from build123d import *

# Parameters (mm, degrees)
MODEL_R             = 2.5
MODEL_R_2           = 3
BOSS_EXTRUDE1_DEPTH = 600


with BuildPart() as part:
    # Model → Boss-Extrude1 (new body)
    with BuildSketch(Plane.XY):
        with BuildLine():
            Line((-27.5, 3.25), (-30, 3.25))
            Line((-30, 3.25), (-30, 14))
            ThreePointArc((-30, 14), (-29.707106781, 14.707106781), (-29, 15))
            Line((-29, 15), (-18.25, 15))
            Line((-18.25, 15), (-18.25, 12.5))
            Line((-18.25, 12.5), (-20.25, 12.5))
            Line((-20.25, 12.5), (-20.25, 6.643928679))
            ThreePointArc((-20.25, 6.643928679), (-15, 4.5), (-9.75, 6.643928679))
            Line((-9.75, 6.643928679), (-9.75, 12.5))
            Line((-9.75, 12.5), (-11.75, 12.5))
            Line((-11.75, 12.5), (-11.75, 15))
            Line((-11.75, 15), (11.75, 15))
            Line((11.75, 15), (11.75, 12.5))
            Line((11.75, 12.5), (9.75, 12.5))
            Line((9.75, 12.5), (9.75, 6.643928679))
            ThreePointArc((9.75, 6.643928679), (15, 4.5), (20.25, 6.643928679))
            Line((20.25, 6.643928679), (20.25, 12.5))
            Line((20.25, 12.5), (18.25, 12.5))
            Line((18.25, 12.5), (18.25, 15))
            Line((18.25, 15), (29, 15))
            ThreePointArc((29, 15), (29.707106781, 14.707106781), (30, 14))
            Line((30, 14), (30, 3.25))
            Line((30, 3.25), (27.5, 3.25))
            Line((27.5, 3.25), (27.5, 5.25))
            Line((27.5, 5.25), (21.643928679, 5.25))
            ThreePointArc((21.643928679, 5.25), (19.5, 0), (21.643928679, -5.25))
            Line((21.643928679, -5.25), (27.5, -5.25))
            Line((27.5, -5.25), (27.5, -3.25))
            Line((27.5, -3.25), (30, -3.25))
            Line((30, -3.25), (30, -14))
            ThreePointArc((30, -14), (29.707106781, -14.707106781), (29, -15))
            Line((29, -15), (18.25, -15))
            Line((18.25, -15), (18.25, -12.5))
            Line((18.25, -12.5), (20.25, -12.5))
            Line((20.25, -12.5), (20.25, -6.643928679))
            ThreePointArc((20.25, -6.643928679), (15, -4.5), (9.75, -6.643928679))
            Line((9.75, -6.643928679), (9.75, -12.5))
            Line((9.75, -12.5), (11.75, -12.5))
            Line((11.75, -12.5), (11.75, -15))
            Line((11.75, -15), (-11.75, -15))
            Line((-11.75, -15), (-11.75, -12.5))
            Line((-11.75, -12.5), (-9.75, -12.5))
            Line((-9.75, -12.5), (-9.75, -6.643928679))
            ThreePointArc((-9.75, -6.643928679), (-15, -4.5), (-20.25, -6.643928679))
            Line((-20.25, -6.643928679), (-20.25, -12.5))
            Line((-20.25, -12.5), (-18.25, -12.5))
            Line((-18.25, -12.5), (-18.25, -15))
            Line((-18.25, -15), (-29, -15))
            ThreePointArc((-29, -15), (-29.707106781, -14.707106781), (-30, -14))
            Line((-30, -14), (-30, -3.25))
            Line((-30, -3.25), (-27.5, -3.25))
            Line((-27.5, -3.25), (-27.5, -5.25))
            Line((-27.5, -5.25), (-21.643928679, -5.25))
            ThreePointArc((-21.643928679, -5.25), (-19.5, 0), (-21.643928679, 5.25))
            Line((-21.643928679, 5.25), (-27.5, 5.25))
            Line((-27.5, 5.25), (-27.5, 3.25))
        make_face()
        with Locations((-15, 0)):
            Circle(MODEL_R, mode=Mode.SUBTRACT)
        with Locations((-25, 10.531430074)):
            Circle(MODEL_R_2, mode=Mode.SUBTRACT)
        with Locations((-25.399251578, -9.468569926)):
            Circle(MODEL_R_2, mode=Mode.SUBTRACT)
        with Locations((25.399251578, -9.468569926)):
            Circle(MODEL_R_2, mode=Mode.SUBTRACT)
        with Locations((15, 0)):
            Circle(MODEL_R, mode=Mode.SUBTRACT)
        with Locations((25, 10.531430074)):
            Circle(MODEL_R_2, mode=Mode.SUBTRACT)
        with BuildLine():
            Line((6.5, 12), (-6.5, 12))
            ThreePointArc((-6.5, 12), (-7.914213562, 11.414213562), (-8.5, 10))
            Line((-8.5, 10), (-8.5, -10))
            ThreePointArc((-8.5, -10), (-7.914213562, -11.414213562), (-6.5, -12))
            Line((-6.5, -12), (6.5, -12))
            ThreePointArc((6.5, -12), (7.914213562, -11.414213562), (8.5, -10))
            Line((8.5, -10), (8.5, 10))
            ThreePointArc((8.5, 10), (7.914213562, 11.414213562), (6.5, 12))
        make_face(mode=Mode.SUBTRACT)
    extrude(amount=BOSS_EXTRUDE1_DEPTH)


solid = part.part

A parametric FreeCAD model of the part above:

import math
import FreeCAD as App
import Part
import Sketcher
from FreeCAD import Vector

doc = App.newDocument("Part")
body = doc.addObject("PartDesign::Body", "Body")

sketch1 = body.newObject("Sketcher::SketchObject", "Sketch")
sketch1.AttachmentSupport = (doc.getObject("XY_Plane"), [""])
sketch1.MapMode = "FlatFace"
sketch1.addGeometry([
    Part.LineSegment(Vector(-30, 3.2, 0), Vector(-27.5, 3.2, 0)),
    Part.LineSegment(Vector(-27.5, 3.2, 0), Vector(-27.5, 5.2, 0)),
    Part.LineSegment(Vector(-27.5, 5.2, 0), Vector(-21.6, 5.2, 0)),
    Part.ArcOfCircle(Part.Circle(Vector(-27, 0, 0), Vector(0, 0, 1), 7.5), math.radians(-44), math.radians(44)),
    Part.LineSegment(Vector(-21.6, -5.2, 0), Vector(-27.5, -5.2, 0)),
    Part.LineSegment(Vector(-27.5, -5.2, 0), Vector(-27.5, -3.2, 0)),
    Part.LineSegment(Vector(-27.5, -3.2, 0), Vector(-30, -3.2, 0)),
    Part.LineSegment(Vector(-30, -3.2, 0), Vector(-30, -14, 0)),
    Part.ArcOfCircle(Part.Circle(Vector(-29, -14, 0), Vector(0, 0, 1), 1), math.radians(-180), math.radians(-90)),
    Part.LineSegment(Vector(-29, -15, 0), Vector(-18.2, -15, 0)),
    Part.LineSegment(Vector(-18.2, -15, 0), Vector(-18.2, -12.5, 0)),
    Part.LineSegment(Vector(-18.2, -12.5, 0), Vector(-20.2, -12.5, 0)),
    Part.LineSegment(Vector(-20.2, -12.5, 0), Vector(-20.2, -6.6, 0)),
    Part.ArcOfCircle(Part.Circle(Vector(-15, -12, 0), Vector(0, 0, 1), 7.5), math.radians(46), math.radians(134)),
    Part.LineSegment(Vector(-9.8, -6.6, 0), Vector(-9.8, -12.5, 0)),
    Part.LineSegment(Vector(-9.8, -12.5, 0), Vector(-11.8, -12.5, 0)),
    Part.LineSegment(Vector(-11.8, -12.5, 0), Vector(-11.8, -15, 0)),
    Part.LineSegment(Vector(-11.8, -15, 0), Vector(11.8, -15, 0)),
    Part.LineSegment(Vector(11.8, -15, 0), Vector(11.8, -12.5, 0)),
    Part.LineSegment(Vector(11.8, -12.5, 0), Vector(9.8, -12.5, 0)),
    Part.LineSegment(Vector(9.8, -12.5, 0), Vector(9.8, -6.6, 0)),
    Part.ArcOfCircle(Part.Circle(Vector(15, -12, 0), Vector(0, 0, 1), 7.5), math.radians(46), math.radians(134)),
    Part.LineSegment(Vector(20.2, -6.6, 0), Vector(20.2, -12.5, 0)),
    Part.LineSegment(Vector(20.2, -12.5, 0), Vector(18.2, -12.5, 0)),
    Part.LineSegment(Vector(18.2, -12.5, 0), Vector(18.2, -15, 0)),
    Part.LineSegment(Vector(18.2, -15, 0), Vector(29, -15, 0)),
    Part.ArcOfCircle(Part.Circle(Vector(29, -14, 0), Vector(0, 0, 1), 1), math.radians(-90), math.radians(0)),
    Part.LineSegment(Vector(30, -14, 0), Vector(30, -3.2, 0)),
    Part.LineSegment(Vector(30, -3.2, 0), Vector(27.5, -3.2, 0)),
    Part.LineSegment(Vector(27.5, -3.2, 0), Vector(27.5, -5.2, 0)),
    Part.LineSegment(Vector(27.5, -5.2, 0), Vector(21.6, -5.2, 0)),
    Part.ArcOfCircle(Part.Circle(Vector(27, 0, 0), Vector(0, 0, 1), 7.5), math.radians(136), math.radians(224)),
    Part.LineSegment(Vector(21.6, 5.2, 0), Vector(27.5, 5.2, 0)),
    Part.LineSegment(Vector(27.5, 5.2, 0), Vector(27.5, 3.2, 0)),
    Part.LineSegment(Vector(27.5, 3.2, 0), Vector(30, 3.2, 0)),
    Part.LineSegment(Vector(30, 3.2, 0), Vector(30, 14, 0)),
    Part.ArcOfCircle(Part.Circle(Vector(29, 14, 0), Vector(0, 0, 1), 1), math.radians(0), math.radians(90)),
    Part.LineSegment(Vector(29, 15, 0), Vector(18.2, 15, 0)),
    Part.LineSegment(Vector(18.2, 15, 0), Vector(18.2, 12.5, 0)),
    Part.LineSegment(Vector(18.2, 12.5, 0), Vector(20.2, 12.5, 0)),
    Part.LineSegment(Vector(20.2, 12.5, 0), Vector(20.2, 6.6, 0)),
    Part.ArcOfCircle(Part.Circle(Vector(15, 12, 0), Vector(0, 0, 1), 7.5), math.radians(-134), math.radians(-46)),
    Part.LineSegment(Vector(9.8, 6.6, 0), Vector(9.8, 12.5, 0)),
    Part.LineSegment(Vector(9.8, 12.5, 0), Vector(11.8, 12.5, 0)),
    Part.LineSegment(Vector(11.8, 12.5, 0), Vector(11.8, 15, 0)),
    Part.LineSegment(Vector(11.8, 15, 0), Vector(-11.8, 15, 0)),
    Part.LineSegment(Vector(-11.8, 15, 0), Vector(-11.8, 12.5, 0)),
    Part.LineSegment(Vector(-11.8, 12.5, 0), Vector(-9.8, 12.5, 0)),
    Part.LineSegment(Vector(-9.8, 12.5, 0), Vector(-9.8, 6.6, 0)),
    Part.ArcOfCircle(Part.Circle(Vector(-15, 12, 0), Vector(0, 0, 1), 7.5), math.radians(-134), math.radians(-46)),
    Part.LineSegment(Vector(-20.2, 6.6, 0), Vector(-20.2, 12.5, 0)),
    Part.LineSegment(Vector(-20.2, 12.5, 0), Vector(-18.2, 12.5, 0)),
    Part.LineSegment(Vector(-18.2, 12.5, 0), Vector(-18.2, 15, 0)),
    Part.LineSegment(Vector(-18.2, 15, 0), Vector(-29, 15, 0)),
    Part.ArcOfCircle(Part.Circle(Vector(-29, 14, 0), Vector(0, 0, 1), 1), math.radians(90), math.radians(180)),
    Part.LineSegment(Vector(-30, 14, 0), Vector(-30, 3.2, 0)),
    Part.Circle(Vector(25.4, -9.5, 0), Vector(0, 0, 1), 3),
    Part.Circle(Vector(15, 0, 0), Vector(0, 0, 1), 2.5),
    Part.Circle(Vector(-25.4, -9.5, 0), Vector(0, 0, 1), 3),
    Part.ArcOfCircle(Part.Circle(Vector(6.5, 10, 0), Vector(0, 0, 1), 2), math.radians(0), math.radians(90)),
    Part.LineSegment(Vector(8.5, 10, 0), Vector(8.5, -10, 0)),
    Part.ArcOfCircle(Part.Circle(Vector(6.5, -10, 0), Vector(0, 0, 1), 2), math.radians(-90), math.radians(0)),
    Part.LineSegment(Vector(6.5, -12, 0), Vector(-6.5, -12, 0)),
    Part.ArcOfCircle(Part.Circle(Vector(-6.5, -10, 0), Vector(0, 0, 1), 2), math.radians(-180), math.radians(-90)),
    Part.LineSegment(Vector(-8.5, -10, 0), Vector(-8.5, 10, 0)),
    Part.ArcOfCircle(Part.Circle(Vector(-6.5, 10, 0), Vector(0, 0, 1), 2), math.radians(90), math.radians(180)),
    Part.LineSegment(Vector(-6.5, 12, 0), Vector(6.5, 12, 0)),
    Part.Circle(Vector(-15, 0, 0), Vector(0, 0, 1), 2.5),
    Part.Circle(Vector(25, 10.5, 0), Vector(0, 0, 1), 3),
    Part.Circle(Vector(-25, 10.5, 0), Vector(0, 0, 1), 3),
], False)
sketch1.addConstraint([
    Sketcher.Constraint("Coincident", 0, 2, 1, 1),
    Sketcher.Constraint("Coincident", 1, 2, 2, 1),
    Sketcher.Constraint("Coincident", 2, 2, 3, 2),
    Sketcher.Constraint("Coincident", 3, 1, 4, 1),
    Sketcher.Constraint("Coincident", 4, 2, 5, 1),
    Sketcher.Constraint("Coincident", 5, 2, 6, 1),
    Sketcher.Constraint("Coincident", 6, 2, 7, 1),
    Sketcher.Constraint("Tangent", 7, 2, 8, 1),
    Sketcher.Constraint("Tangent", 8, 2, 9, 1),
    Sketcher.Constraint("Coincident", 9, 2, 10, 1),
    Sketcher.Constraint("Coincident", 10, 2, 11, 1),
    Sketcher.Constraint("Coincident", 11, 2, 12, 1),
    Sketcher.Constraint("Coincident", 12, 2, 13, 2),
    Sketcher.Constraint("Coincident", 13, 1, 14, 1),
    Sketcher.Constraint("Coincident", 14, 2, 15, 1),
    Sketcher.Constraint("Coincident", 15, 2, 16, 1),
    Sketcher.Constraint("Coincident", 16, 2, 17, 1),
    Sketcher.Constraint("Coincident", 17, 2, 18, 1),
    Sketcher.Constraint("Coincident", 18, 2, 19, 1),
    Sketcher.Constraint("Coincident", 19, 2, 20, 1),
    Sketcher.Constraint("Coincident", 20, 2, 21, 2),
    Sketcher.Constraint("Coincident", 21, 1, 22, 1),
    Sketcher.Constraint("Coincident", 22, 2, 23, 1),
    Sketcher.Constraint("Coincident", 23, 2, 24, 1),
    Sketcher.Constraint("Coincident", 24, 2, 25, 1),
    Sketcher.Constraint("Tangent", 25, 2, 26, 1),
    Sketcher.Constraint("Tangent", 26, 2, 27, 1),
    Sketcher.Constraint("Coincident", 27, 2, 28, 1),
    Sketcher.Constraint("Coincident", 28, 2, 29, 1),
    Sketcher.Constraint("Coincident", 29, 2, 30, 1),
    Sketcher.Constraint("Coincident", 30, 2, 31, 2),
    Sketcher.Constraint("Coincident", 31, 1, 32, 1),
    Sketcher.Constraint("Coincident", 32, 2, 33, 1),
    Sketcher.Constraint("Coincident", 33, 2, 34, 1),
    Sketcher.Constraint("Coincident", 34, 2, 35, 1),
    Sketcher.Constraint("Tangent", 35, 2, 36, 1),
    Sketcher.Constraint("Tangent", 36, 2, 37, 1),
    Sketcher.Constraint("Coincident", 37, 2, 38, 1),
    Sketcher.Constraint("Coincident", 38, 2, 39, 1),
    Sketcher.Constraint("Coincident", 39, 2, 40, 1),
    Sketcher.Constraint("Coincident", 40, 2, 41, 2),
    Sketcher.Constraint("Coincident", 41, 1, 42, 1),
    Sketcher.Constraint("Coincident", 42, 2, 43, 1),
    Sketcher.Constraint("Coincident", 43, 2, 44, 1),
    Sketcher.Constraint("Coincident", 44, 2, 45, 1),
    Sketcher.Constraint("Coincident", 45, 2, 46, 1),
    Sketcher.Constraint("Coincident", 46, 2, 47, 1),
    Sketcher.Constraint("Coincident", 47, 2, 48, 1),
    Sketcher.Constraint("Coincident", 48, 2, 49, 2),
    Sketcher.Constraint("Coincident", 49, 1, 50, 1),
    Sketcher.Constraint("Coincident", 50, 2, 51, 1),
    Sketcher.Constraint("Coincident", 51, 2, 52, 1),
    Sketcher.Constraint("Coincident", 52, 2, 53, 1),
    Sketcher.Constraint("Tangent", 53, 2, 54, 1),
    Sketcher.Constraint("Tangent", 54, 2, 55, 1),
    Sketcher.Constraint("Coincident", 55, 2, 0, 1),
    Sketcher.Constraint("Tangent", 59, 1, 60, 1),
    Sketcher.Constraint("Tangent", 60, 2, 61, 2),
    Sketcher.Constraint("Tangent", 61, 1, 62, 1),
    Sketcher.Constraint("Tangent", 62, 2, 63, 2),
    Sketcher.Constraint("Tangent", 63, 1, 64, 1),
    Sketcher.Constraint("Tangent", 64, 2, 65, 2),
    Sketcher.Constraint("Tangent", 65, 1, 66, 1),
    Sketcher.Constraint("Tangent", 66, 2, 59, 2),
    Sketcher.Constraint("Horizontal", 0),
    Sketcher.Constraint("Vertical", 1),
    Sketcher.Constraint("Horizontal", 2),
    Sketcher.Constraint("Horizontal", 4),
    Sketcher.Constraint("Vertical", 5),
    Sketcher.Constraint("Horizontal", 6),
    Sketcher.Constraint("Vertical", 7),
    Sketcher.Constraint("Horizontal", 9),
    Sketcher.Constraint("Vertical", 10),
    Sketcher.Constraint("Horizontal", 11),
    Sketcher.Constraint("Vertical", 12),
    Sketcher.Constraint("Vertical", 14),
    Sketcher.Constraint("Horizontal", 15),
    Sketcher.Constraint("Vertical", 16),
    Sketcher.Constraint("Horizontal", 17),
    Sketcher.Constraint("Vertical", 18),
    Sketcher.Constraint("Horizontal", 19),
    Sketcher.Constraint("Vertical", 20),
    Sketcher.Constraint("Vertical", 22),
    Sketcher.Constraint("Horizontal", 23),
    Sketcher.Constraint("Vertical", 24),
    Sketcher.Constraint("Horizontal", 25),
    Sketcher.Constraint("Vertical", 27),
    Sketcher.Constraint("Horizontal", 28),
    Sketcher.Constraint("Vertical", 29),
    Sketcher.Constraint("Horizontal", 30),
    Sketcher.Constraint("Horizontal", 32),
    Sketcher.Constraint("Vertical", 33),
    Sketcher.Constraint("Horizontal", 34),
    Sketcher.Constraint("Vertical", 35),
    Sketcher.Constraint("Horizontal", 37),
    Sketcher.Constraint("Vertical", 38),
    Sketcher.Constraint("Horizontal", 39),
    Sketcher.Constraint("Vertical", 40),
    Sketcher.Constraint("Vertical", 42),
    Sketcher.Constraint("Horizontal", 43),
    Sketcher.Constraint("Vertical", 44),
    Sketcher.Constraint("Horizontal", 45),
    Sketcher.Constraint("Vertical", 46),
    Sketcher.Constraint("Horizontal", 47),
    Sketcher.Constraint("Vertical", 48),
    Sketcher.Constraint("Vertical", 50),
    Sketcher.Constraint("Horizontal", 51),
    Sketcher.Constraint("Vertical", 52),
    Sketcher.Constraint("Horizontal", 53),
    Sketcher.Constraint("Vertical", 55),
    Sketcher.Constraint("Vertical", 60),
    Sketcher.Constraint("Horizontal", 62),
    Sketcher.Constraint("Vertical", 64),
    Sketcher.Constraint("Horizontal", 66),
    Sketcher.Constraint("Equal", 3, 13),
    Sketcher.Constraint("Equal", 13, 21),
    Sketcher.Constraint("Equal", 8, 26),
    Sketcher.Constraint("Equal", 21, 31),
    Sketcher.Constraint("Equal", 26, 36),
    Sketcher.Constraint("Equal", 31, 41),
    Sketcher.Constraint("Equal", 41, 49),
    Sketcher.Constraint("Equal", 36, 54),
    Sketcher.Constraint("Equal", 56, 58),
    Sketcher.Constraint("Equal", 59, 61),
    Sketcher.Constraint("Equal", 61, 63),
    Sketcher.Constraint("Equal", 63, 65),
    Sketcher.Constraint("Equal", 57, 67),
    Sketcher.Constraint("Equal", 58, 68),
    Sketcher.Constraint("Equal", 68, 69),
    Sketcher.Constraint("Symmetric", 3, 3, 31, 3, -1, 1),
    Sketcher.Constraint("Symmetric", 8, 3, 36, 3, -1, 1),
    Sketcher.Constraint("Symmetric", 13, 3, 41, 3, -1, 1),
    Sketcher.Constraint("Symmetric", 21, 3, 49, 3, -1, 1),
    Sketcher.Constraint("Symmetric", 26, 3, 54, 3, -1, 1),
    Sketcher.Constraint("Symmetric", 59, 3, 63, 3, -1, 1),
    Sketcher.Constraint("Symmetric", 57, 3, 67, 3, -1, 1),
    Sketcher.Constraint("Symmetric", 0, 2, 28, 2, -1, 1),
    Sketcher.Constraint("Symmetric", 4, 2, 32, 2, -1, 1),
    Sketcher.Constraint("Symmetric", 10, 2, 38, 2, -1, 1),
    Sketcher.Constraint("Symmetric", 14, 2, 42, 2, -1, 1),
    Sketcher.Constraint("Symmetric", 16, 2, 44, 2, -1, 1),
    Sketcher.Constraint("Symmetric", 18, 2, 46, 2, -1, 1),
    Sketcher.Constraint("Symmetric", 22, 2, 50, 2, -1, 1),
    Sketcher.Constraint("Symmetric", 13, 3, 21, 3, -2),
    Sketcher.Constraint("Symmetric", 8, 3, 26, 3, -2),
    Sketcher.Constraint("Symmetric", 56, 3, 58, 3, -2),
    Sketcher.Constraint("Symmetric", 68, 3, 69, 3, -2),
    Sketcher.Constraint("Symmetric", 15, 2, 18, 2, -2),
    Sketcher.Constraint("Symmetric", 11, 2, 22, 2, -2),
    Sketcher.Constraint("Symmetric", 5, 2, 28, 2, -2),
    Sketcher.Constraint("Symmetric", 3, 1, 30, 2, -2),
    Sketcher.Constraint("PointOnObject", 57, 3, -1),
    Sketcher.Constraint("Horizontal", 12, 2, 13, 1),
    Sketcher.Constraint("Horizontal", 11, 2, 14, 2),
    Sketcher.Constraint("Horizontal", 9, 2, 16, 2),
    Sketcher.Constraint("Horizontal", 13, 1, 20, 2),
    Sketcher.Constraint("Horizontal", 2, 2, 31, 1),
    Sketcher.Constraint("Horizontal", 0, 2, 33, 2),
    Sketcher.Constraint("Horizontal", 40, 2, 41, 1),
    Sketcher.Constraint("Horizontal", 41, 1, 48, 2),
    Sketcher.Constraint("Horizontal", 21, 3, 61, 1),
    Sketcher.Constraint("Vertical", 41, 3, 57, 3),
    Sketcher.Constraint("Vertical", 24, 2, 37, 2),
    Sketcher.Constraint("Vertical", 10, 2, 51, 2),
    Sketcher.Constraint("Equal", 11, 15),
    Sketcher.Constraint("Equal", 51, 1),
    Sketcher.Constraint("Equal", 53, 7),
    Sketcher.Constraint("Equal", 34, 10),
    Sketcher.Constraint("Equal", 32, 12),
    Sketcher.Constraint("Diameter", 56, 6.0),
    Sketcher.Constraint("Diameter", 57, 5.0),
    Sketcher.Constraint("Radius", 8, 1.0),
    Sketcher.Constraint("Radius", 59, 2.0),
    Sketcher.Constraint("Radius", 3, 7.5),
    Sketcher.Constraint("DistanceX", 11, 2, 11, 1, 2.0),
    Sketcher.Constraint("DistanceX", 62, 2, 62, 1, 13.0),
    Sketcher.Constraint("DistanceY", 60, 2, 60, 1, 20.0),
    Sketcher.Constraint("DistanceX", 0, 1, 0, 2, 2.5),
    Sketcher.Constraint("DistanceX", 17, 1, 17, 2, 23.5),
    Sketcher.Constraint("DistanceX", 3, 3, -1, 1, 27.0),
    Sketcher.Constraint("DistanceX", 8, 3, -1, 1, 29.0),
    Sketcher.Constraint("DistanceY", 8, 3, -1, 1, 14.0),
    Sketcher.Constraint("DistanceX", -1, 1, 68, 3, 25.0),
    Sketcher.Constraint("DistanceX", -1, 1, 56, 3, 25.399252),
    Sketcher.Constraint("DistanceY", 56, 3, -1, 1, 9.46857),
    Sketcher.Constraint("DistanceY", -1, 1, 68, 3, 10.53143),
])
pad1 = body.newObject("PartDesign::Pad", "Pad")
pad1.Profile = sketch1
pad1.Length = 600

doc.recompute()
